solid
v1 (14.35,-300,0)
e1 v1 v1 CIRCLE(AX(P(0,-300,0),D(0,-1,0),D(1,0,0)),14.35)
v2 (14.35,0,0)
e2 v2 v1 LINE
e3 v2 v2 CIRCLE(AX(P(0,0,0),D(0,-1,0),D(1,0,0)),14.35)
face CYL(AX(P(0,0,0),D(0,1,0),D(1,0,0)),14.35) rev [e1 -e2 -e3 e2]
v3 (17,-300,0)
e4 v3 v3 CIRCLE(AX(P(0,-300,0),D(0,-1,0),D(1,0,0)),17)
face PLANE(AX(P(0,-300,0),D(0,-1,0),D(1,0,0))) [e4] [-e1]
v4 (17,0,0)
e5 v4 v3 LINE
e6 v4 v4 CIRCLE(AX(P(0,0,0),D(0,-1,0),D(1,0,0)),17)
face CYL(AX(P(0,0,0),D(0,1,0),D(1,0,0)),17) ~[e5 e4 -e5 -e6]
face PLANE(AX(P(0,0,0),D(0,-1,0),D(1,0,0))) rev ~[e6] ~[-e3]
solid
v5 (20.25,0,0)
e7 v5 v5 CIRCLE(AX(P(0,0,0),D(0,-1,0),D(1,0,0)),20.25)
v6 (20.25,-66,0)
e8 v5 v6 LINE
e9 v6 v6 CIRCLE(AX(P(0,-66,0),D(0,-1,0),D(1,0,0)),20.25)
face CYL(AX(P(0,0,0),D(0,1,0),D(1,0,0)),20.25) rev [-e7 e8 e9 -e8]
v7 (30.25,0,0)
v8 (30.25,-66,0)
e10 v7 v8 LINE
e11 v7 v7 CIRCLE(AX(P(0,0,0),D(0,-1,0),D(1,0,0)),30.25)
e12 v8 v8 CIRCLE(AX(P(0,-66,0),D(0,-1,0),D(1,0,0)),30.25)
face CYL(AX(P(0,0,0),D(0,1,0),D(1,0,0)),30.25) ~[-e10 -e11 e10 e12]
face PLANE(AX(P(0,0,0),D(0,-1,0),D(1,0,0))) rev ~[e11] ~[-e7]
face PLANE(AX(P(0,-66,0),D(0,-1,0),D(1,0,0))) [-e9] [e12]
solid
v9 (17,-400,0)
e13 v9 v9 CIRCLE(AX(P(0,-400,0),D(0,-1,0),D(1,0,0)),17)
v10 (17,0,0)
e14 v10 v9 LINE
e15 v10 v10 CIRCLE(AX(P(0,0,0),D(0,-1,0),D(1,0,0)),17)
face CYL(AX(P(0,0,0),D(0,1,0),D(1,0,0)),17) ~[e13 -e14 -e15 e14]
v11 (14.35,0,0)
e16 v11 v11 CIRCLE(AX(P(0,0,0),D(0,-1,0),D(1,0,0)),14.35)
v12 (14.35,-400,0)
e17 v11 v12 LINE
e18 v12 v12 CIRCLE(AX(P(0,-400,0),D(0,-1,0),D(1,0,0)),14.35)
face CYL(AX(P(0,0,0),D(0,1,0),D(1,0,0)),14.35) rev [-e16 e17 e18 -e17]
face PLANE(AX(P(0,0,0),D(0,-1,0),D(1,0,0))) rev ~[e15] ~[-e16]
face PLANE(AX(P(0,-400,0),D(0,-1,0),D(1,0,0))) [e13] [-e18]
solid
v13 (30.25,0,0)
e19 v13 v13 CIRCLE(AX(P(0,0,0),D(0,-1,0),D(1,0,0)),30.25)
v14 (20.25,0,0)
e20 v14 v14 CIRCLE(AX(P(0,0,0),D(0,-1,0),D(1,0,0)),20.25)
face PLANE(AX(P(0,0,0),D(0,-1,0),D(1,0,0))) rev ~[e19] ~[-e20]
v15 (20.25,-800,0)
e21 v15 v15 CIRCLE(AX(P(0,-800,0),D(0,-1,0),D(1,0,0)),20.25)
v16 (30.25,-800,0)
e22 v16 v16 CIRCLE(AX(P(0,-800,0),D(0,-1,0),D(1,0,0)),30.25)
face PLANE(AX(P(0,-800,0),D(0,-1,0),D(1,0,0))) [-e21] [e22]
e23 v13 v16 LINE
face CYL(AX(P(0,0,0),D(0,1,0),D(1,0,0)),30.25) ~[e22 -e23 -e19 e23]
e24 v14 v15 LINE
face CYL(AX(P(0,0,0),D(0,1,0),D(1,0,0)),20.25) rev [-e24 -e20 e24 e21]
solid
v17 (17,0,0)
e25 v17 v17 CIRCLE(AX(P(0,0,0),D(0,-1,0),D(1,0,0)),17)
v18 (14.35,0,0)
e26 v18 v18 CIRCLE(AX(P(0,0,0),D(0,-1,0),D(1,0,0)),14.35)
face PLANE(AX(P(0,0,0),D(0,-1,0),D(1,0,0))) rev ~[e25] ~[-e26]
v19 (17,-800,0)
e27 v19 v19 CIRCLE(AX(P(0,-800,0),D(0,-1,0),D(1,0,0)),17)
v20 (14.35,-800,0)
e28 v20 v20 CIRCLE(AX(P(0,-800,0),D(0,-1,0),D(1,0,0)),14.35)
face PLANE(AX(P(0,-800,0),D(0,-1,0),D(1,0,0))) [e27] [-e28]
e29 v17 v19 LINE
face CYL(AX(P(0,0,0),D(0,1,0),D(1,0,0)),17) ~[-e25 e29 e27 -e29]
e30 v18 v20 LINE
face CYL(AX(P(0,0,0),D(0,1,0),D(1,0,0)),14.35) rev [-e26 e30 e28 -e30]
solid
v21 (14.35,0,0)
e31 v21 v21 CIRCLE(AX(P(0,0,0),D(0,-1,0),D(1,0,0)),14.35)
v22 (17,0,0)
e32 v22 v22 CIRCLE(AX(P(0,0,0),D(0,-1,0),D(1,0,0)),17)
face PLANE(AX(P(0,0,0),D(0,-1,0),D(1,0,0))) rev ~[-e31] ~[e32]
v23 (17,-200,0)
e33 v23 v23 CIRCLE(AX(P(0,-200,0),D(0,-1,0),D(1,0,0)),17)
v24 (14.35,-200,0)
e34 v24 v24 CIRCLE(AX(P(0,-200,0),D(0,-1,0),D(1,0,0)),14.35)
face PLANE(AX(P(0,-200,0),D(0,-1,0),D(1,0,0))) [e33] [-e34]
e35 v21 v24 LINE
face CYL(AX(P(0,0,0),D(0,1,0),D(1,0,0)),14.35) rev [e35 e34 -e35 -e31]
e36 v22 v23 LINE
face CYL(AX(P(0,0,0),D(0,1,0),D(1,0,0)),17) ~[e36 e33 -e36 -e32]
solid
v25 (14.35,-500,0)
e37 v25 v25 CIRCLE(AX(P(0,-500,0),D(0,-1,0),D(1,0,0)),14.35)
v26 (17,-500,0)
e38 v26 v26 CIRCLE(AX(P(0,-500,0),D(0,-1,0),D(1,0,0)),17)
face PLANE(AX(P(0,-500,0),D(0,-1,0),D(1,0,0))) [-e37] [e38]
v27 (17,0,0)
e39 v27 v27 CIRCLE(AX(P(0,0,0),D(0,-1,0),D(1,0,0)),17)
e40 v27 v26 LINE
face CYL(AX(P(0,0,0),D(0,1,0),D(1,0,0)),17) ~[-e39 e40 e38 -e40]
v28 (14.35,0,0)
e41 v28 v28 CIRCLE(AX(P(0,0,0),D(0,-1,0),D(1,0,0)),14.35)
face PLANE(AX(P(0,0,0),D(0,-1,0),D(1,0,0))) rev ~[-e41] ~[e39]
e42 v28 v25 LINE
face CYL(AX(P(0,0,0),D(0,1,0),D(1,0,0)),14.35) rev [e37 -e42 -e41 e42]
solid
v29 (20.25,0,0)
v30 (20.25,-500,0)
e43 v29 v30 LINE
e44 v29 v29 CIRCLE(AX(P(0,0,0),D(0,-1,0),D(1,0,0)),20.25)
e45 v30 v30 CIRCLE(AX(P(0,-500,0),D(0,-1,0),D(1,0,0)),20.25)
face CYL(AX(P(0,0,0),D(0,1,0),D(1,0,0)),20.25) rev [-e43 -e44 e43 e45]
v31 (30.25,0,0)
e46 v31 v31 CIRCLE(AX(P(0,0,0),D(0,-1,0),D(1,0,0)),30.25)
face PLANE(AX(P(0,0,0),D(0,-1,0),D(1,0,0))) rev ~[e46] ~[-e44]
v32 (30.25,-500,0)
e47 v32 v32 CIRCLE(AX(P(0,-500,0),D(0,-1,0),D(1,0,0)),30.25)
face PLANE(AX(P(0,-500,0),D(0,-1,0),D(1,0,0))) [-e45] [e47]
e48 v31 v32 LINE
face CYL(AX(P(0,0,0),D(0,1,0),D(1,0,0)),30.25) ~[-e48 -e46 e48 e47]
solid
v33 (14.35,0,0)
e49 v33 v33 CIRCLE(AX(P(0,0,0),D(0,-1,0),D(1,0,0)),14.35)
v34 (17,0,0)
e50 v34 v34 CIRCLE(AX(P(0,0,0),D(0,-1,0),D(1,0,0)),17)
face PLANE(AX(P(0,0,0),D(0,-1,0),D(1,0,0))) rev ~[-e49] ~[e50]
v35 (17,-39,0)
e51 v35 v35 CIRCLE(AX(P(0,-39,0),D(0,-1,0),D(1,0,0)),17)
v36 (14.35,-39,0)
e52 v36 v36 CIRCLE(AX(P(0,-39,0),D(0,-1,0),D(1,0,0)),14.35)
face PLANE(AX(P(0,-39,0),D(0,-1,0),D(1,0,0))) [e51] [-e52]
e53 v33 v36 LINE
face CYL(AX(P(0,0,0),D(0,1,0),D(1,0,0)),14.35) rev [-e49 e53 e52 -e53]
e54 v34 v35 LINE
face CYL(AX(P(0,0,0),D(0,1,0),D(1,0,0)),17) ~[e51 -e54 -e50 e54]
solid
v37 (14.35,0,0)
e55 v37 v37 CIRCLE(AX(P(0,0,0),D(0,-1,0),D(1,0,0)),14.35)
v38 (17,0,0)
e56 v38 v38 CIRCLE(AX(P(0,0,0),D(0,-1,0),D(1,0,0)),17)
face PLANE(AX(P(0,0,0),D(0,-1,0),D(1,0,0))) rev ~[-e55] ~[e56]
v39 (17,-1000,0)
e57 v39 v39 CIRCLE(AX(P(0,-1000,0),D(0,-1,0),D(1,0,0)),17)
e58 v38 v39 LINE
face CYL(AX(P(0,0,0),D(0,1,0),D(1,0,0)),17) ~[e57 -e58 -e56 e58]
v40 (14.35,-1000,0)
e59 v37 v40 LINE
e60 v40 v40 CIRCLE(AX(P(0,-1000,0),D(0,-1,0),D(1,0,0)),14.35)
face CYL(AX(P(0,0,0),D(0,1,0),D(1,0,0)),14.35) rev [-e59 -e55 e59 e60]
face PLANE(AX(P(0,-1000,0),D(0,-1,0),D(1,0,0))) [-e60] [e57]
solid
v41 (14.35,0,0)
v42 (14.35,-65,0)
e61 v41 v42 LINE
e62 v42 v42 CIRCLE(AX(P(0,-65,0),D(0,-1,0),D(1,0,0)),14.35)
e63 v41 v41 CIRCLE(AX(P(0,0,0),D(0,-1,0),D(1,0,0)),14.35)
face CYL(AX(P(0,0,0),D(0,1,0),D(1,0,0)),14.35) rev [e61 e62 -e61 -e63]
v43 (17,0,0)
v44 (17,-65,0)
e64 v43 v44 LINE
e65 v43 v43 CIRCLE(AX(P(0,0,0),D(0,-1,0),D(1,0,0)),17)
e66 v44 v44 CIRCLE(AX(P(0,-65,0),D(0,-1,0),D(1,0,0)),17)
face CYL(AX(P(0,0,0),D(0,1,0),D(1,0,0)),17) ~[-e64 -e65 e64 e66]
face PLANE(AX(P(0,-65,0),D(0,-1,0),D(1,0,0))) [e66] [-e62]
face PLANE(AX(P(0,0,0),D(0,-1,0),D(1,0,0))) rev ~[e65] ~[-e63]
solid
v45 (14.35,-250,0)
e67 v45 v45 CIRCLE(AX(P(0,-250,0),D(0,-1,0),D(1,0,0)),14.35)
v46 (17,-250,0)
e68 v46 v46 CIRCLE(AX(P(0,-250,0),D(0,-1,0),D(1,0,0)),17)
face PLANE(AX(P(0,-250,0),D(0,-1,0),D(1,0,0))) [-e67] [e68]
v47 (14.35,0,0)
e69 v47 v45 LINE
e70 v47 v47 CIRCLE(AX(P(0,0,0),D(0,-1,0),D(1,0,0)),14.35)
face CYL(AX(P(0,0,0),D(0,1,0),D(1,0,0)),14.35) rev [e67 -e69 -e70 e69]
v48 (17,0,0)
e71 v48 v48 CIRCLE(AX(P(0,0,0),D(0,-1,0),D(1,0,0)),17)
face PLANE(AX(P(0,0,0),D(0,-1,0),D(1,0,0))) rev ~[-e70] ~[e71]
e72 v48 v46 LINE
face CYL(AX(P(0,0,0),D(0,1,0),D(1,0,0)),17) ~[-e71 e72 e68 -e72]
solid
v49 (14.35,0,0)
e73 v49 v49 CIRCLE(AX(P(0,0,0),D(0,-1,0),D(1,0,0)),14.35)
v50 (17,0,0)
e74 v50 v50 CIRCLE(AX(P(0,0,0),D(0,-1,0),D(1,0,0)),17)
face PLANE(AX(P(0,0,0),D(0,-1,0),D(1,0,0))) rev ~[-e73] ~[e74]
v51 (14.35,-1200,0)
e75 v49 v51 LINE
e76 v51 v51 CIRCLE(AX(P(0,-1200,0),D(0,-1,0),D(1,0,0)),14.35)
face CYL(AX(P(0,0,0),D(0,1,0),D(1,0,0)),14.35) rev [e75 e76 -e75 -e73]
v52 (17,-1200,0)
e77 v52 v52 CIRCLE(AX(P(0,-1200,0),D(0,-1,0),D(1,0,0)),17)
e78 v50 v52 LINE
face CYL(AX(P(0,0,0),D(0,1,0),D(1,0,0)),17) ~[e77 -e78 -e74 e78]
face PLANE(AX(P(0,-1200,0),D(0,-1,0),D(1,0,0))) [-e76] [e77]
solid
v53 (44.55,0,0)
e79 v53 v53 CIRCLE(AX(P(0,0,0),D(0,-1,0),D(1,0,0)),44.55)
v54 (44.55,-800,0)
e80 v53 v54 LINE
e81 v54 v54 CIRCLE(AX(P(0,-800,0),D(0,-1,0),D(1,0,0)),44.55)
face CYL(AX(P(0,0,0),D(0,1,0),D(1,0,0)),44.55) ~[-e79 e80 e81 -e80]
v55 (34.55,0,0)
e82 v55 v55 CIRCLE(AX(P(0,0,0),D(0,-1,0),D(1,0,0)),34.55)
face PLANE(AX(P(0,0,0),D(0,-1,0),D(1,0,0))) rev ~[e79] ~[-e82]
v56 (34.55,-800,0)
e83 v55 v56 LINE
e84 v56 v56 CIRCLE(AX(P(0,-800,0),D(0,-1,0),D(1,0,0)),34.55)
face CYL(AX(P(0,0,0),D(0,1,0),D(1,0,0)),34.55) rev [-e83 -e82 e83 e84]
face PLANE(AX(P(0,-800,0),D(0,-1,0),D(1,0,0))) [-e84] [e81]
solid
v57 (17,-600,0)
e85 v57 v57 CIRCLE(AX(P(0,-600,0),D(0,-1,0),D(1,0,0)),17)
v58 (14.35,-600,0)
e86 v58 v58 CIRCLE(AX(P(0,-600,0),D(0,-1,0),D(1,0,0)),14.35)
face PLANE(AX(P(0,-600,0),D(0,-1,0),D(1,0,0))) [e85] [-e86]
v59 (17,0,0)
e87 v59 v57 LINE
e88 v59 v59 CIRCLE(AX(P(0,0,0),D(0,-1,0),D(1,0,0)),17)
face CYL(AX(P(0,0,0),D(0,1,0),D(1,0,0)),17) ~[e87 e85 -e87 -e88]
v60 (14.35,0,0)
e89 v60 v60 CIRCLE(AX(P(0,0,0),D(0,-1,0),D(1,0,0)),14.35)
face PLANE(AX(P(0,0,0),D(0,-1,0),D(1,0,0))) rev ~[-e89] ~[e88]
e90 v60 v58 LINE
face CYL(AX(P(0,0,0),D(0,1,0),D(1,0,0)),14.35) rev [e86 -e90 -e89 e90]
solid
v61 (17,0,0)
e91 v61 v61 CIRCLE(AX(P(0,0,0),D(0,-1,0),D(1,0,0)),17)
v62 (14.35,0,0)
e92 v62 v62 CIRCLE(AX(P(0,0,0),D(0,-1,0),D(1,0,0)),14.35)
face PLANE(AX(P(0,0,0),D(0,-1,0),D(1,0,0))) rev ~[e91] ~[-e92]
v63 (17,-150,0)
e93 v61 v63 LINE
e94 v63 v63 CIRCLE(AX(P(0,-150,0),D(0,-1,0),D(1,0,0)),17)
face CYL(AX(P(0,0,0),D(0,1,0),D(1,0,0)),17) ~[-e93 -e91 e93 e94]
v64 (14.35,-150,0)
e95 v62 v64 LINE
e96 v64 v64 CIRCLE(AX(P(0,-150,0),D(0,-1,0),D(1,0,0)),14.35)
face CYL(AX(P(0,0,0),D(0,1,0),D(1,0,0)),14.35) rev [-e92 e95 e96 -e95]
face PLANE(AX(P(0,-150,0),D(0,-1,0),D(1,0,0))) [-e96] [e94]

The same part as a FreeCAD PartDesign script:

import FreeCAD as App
import Part
import Sketcher

doc = App.newDocument("Part")
body = doc.addObject("PartDesign::Body", "Body")

sketch1 = doc.addObject("Sketcher::SketchObject", "Sketch")
body.addObject(sketch1)
sketch1.AttachmentSupport = (doc.XZ_Plane, [""])
sketch1.MapMode = "FlatFace"
sketch1.addGeometry([
    Part.Circle(App.Vector(0, 0, 0), App.Vector(0, 0, 1), 17),
    Part.Circle(App.Vector(0, 0, 0), App.Vector(0, 0, 1), 14),
], False)
sketch1.addConstraint([
    Sketcher.Constraint("Coincident", 0, 3, -1, 1),
    Sketcher.Constraint("Coincident", 1, 3, -1, 1),
    Sketcher.Constraint("Diameter", 0, 34.0),
    Sketcher.Constraint("Diameter", 1, 28.7),
])
pad1 = doc.addObject("PartDesign::Pad", "Pad")
body.addObject(pad1)
pad1.Profile = sketch1
pad1.Length = 1000
body2 = doc.addObject("PartDesign::Body", "Body001")

sketch2 = doc.addObject("Sketcher::SketchObject", "Sketch001")
body2.addObject(sketch2)
sketch2.AttachmentSupport = (doc.getObject("XZ_Plane001"), [""])
sketch2.MapMode = "FlatFace"
sketch2.addGeometry([
    Part.Circle(App.Vector(0, 0, 0), App.Vector(0, 0, 1), 17),
    Part.Circle(App.Vector(0, 0, 0), App.Vector(0, 0, 1), 14),
], False)
sketch2.addConstraint([
    Sketcher.Constraint("Coincident", 0, 3, -1, 1),
    Sketcher.Constraint("Coincident", 1, 3, -1, 1),
    Sketcher.Constraint("Diameter", 0, 34.0),
    Sketcher.Constraint("Diameter", 1, 28.7),
])
pad2 = doc.addObject("PartDesign::Pad", "Pad001")
body2.addObject(pad2)
pad2.Profile = sketch2
pad2.Length = 39
body3 = doc.addObject("PartDesign::Body", "Body002")

sketch3 = doc.addObject("Sketcher::SketchObject", "Sketch002")
body3.addObject(sketch3)
sketch3.AttachmentSupport = (doc.getObject("XZ_Plane002"), [""])
sketch3.MapMode = "FlatFace"
sketch3.addGeometry([
    Part.Circle(App.Vector(0, 0, 0), App.Vector(0, 0, 1), 17),
    Part.Circle(App.Vector(0, 0, 0), App.Vector(0, 0, 1), 14),
], False)
sketch3.addConstraint([
    Sketcher.Constraint("Coincident", 0, 3, -1, 1),
    Sketcher.Constraint("Coincident", 1, 3, -1, 1),
    Sketcher.Constraint("Diameter", 0, 34.0),
    Sketcher.Constraint("Diameter", 1, 28.7),
])
pad3 = doc.addObject("PartDesign::Pad", "Pad002")
body3.addObject(pad3)
pad3.Profile = sketch3
pad3.Length = 600
body4 = doc.addObject("PartDesign::Body", "Body003")

sketch4 = doc.addObject("Sketcher::SketchObject", "Sketch003")
body4.addObject(sketch4)
sketch4.AttachmentSupport = (doc.getObject("XZ_Plane003"), [""])
sketch4.MapMode = "FlatFace"
sketch4.addGeometry([
    Part.Circle(App.Vector(0, 0, 0), App.Vector(0, 0, 1), 17),
    Part.Circle(App.Vector(0, 0, 0), App.Vector(0, 0, 1), 14),
], False)
sketch4.addConstraint([
    Sketcher.Constraint("Coincident", 0, 3, -1, 1),
    Sketcher.Constraint("Coincident", 1, 3, -1, 1),
    Sketcher.Constraint("Diameter", 0, 34.0),
    Sketcher.Constraint("Diameter", 1, 28.7),
])
pad4 = doc.addObject("PartDesign::Pad", "Pad003")
body4.addObject(pad4)
pad4.Profile = sketch4
pad4.Length = 300
body5 = doc.addObject("PartDesign::Body", "Body004")

sketch5 = doc.addObject("Sketcher::SketchObject", "Sketch004")
body5.addObject(sketch5)
sketch5.AttachmentSupport = (doc.getObject("XZ_Plane004"), [""])
sketch5.MapMode = "FlatFace"
sketch5.addGeometry([
    Part.Circle(App.Vector(0, 0, 0), App.Vector(0, 0, 1), 17),
    Part.Circle(App.Vector(0, 0, 0), App.Vector(0, 0, 1), 14),
], False)
sketch5.addConstraint([
    Sketcher.Constraint("Coincident", 0, 3, -1, 1),
    Sketcher.Constraint("Coincident", 1, 3, -1, 1),
    Sketcher.Constraint("Diameter", 0, 34.0),
    Sketcher.Constraint("Diameter", 1, 28.7),
])
pad5 = doc.addObject("PartDesign::Pad", "Pad004")
body5.addObject(pad5)
pad5.Profile = sketch5
pad5.Length = 500
body6 = doc.addObject("PartDesign::Body", "Body005")

sketch6 = doc.addObject("Sketcher::SketchObject", "Sketch005")
body6.addObject(sketch6)
sketch6.AttachmentSupport = (doc.getObject("XZ_Plane005"), [""])
sketch6.MapMode = "FlatFace"
sketch6.addGeometry([
    Part.Circle(App.Vector(0, 0, 0), App.Vector(0, 0, 1), 17),
    Part.Circle(App.Vector(0, 0, 0), App.Vector(0, 0, 1), 14),
], False)
sketch6.addConstraint([
    Sketcher.Constraint("Coincident", 0, 3, -1, 1),
    Sketcher.Constraint("Coincident", 1, 3, -1, 1),
    Sketcher.Constraint("Diameter", 0, 34.0),
    Sketcher.Constraint("Diameter", 1, 28.7),
])
pad6 = doc.addObject("PartDesign::Pad", "Pad005")
body6.addObject(pad6)
pad6.Profile = sketch6
pad6.Length = 65
body7 = doc.addObject("PartDesign::Body", "Body006")

sketch7 = doc.addObject("Sketcher::SketchObject", "Sketch006")
body7.addObject(sketch7)
sketch7.AttachmentSupport = (doc.getObject("XZ_Plane006"), [""])
sketch7.MapMode = "FlatFace"
sketch7.addGeometry([
    Part.Circle(App.Vector(0, 0, 0), App.Vector(0, 0, 1), 45),
    Part.Circle(App.Vector(0, 0, 0), App.Vector(0, 0, 1), 35),
], False)
sketch7.addConstraint([
    Sketcher.Constraint("Coincident", 0, 3, -1, 1),
    Sketcher.Constraint("Coincident", 1, 3, -1, 1),
    Sketcher.Constraint("Diameter", 0, 89.1),
    Sketcher.Constraint("Diameter", 1, 69.1),
])
pad7 = doc.addObject("PartDesign::Pad", "Pad006")
body7.addObject(pad7)
pad7.Profile = sketch7
pad7.Length = 800
body8 = doc.addObject("PartDesign::Body", "Body007")

sketch8 = doc.addObject("Sketcher::SketchObject", "Sketch007")
body8.addObject(sketch8)
sketch8.AttachmentSupport = (doc.getObject("XZ_Plane007"), [""])
sketch8.MapMode = "FlatFace"
sketch8.addGeometry([
    Part.Circle(App.Vector(0, 0, 0), App.Vector(0, 0, 1), 30),
    Part.Circle(App.Vector(0, 0, 0), App.Vector(0, 0, 1), 20),
], False)
sketch8.addConstraint([
    Sketcher.Constraint("Coincident", 0, 3, -1, 1),
    Sketcher.Constraint("Coincident", 1, 3, -1, 1),
    Sketcher.Constraint("Diameter", 0, 60.5),
    Sketcher.Constraint("Diameter", 1, 40.5),
])
pad8 = doc.addObject("PartDesign::Pad", "Pad007")
body8.addObject(pad8)
pad8.Profile = sketch8
pad8.Length = 66
body9 = doc.addObject("PartDesign::Body", "Body008")

sketch9 = doc.addObject("Sketcher::SketchObject", "Sketch008")
body9.addObject(sketch9)
sketch9.AttachmentSupport = (doc.getObject("XZ_Plane008"), [""])
sketch9.MapMode = "FlatFace"
sketch9.addGeometry([
    Part.Circle(App.Vector(0, 0, 0), App.Vector(0, 0, 1), 17),
    Part.Circle(App.Vector(0, 0, 0), App.Vector(0, 0, 1), 14),
], False)
sketch9.addConstraint([
    Sketcher.Constraint("Coincident", 0, 3, -1, 1),
    Sketcher.Constraint("Coincident", 1, 3, -1, 1),
    Sketcher.Constraint("Diameter", 0, 34.0),
    Sketcher.Constraint("Diameter", 1, 28.7),
])
pad9 = doc.addObject("PartDesign::Pad", "Pad008")
body9.addObject(pad9)
pad9.Profile = sketch9
pad9.Length = 200
body10 = doc.addObject("PartDesign::Body", "Body009")

sketch10 = doc.addObject("Sketcher::SketchObject", "Sketch009")
body10.addObject(sketch10)
sketch10.AttachmentSupport = (doc.getObject("XZ_Plane009"), [""])
sketch10.MapMode = "FlatFace"
sketch10.addGeometry([
    Part.Circle(App.Vector(0, 0, 0), App.Vector(0, 0, 1), 17),
    Part.Circle(App.Vector(0, 0, 0), App.Vector(0, 0, 1), 14),
], False)
sketch10.addConstraint([
    Sketcher.Constraint("Coincident", 0, 3, -1, 1),
    Sketcher.Constraint("Coincident", 1, 3, -1, 1),
    Sketcher.Constraint("Diameter", 0, 34.0),
    Sketcher.Constraint("Diameter", 1, 28.7),
])
pad10 = doc.addObject("PartDesign::Pad", "Pad009")
body10.addObject(pad10)
pad10.Profile = sketch10
pad10.Length = 150
body11 = doc.addObject("PartDesign::Body", "Body010")

sketch11 = doc.addObject("Sketcher::SketchObject", "Sketch010")
body11.addObject(sketch11)
sketch11.AttachmentSupport = (doc.getObject("XZ_Plane010"), [""])
sketch11.MapMode = "FlatFace"
sketch11.addGeometry([
    Part.Circle(App.Vector(0, 0, 0), App.Vector(0, 0, 1), 30),
    Part.Circle(App.Vector(0, 0, 0), App.Vector(0, 0, 1), 20),
], False)
sketch11.addConstraint([
    Sketcher.Constraint("Coincident", 0, 3, -1, 1),
    Sketcher.Constraint("Coincident", 1, 3, -1, 1),
    Sketcher.Constraint("Diameter", 0, 60.5),
    Sketcher.Constraint("Diameter", 1, 40.5),
])
pad11 = doc.addObject("PartDesign::Pad", "Pad010")
body11.addObject(pad11)
pad11.Profile = sketch11
pad11.Length = 500
body12 = doc.addObject("PartDesign::Body", "Body011")

sketch12 = doc.addObject("Sketcher::SketchObject", "Sketch011")
body12.addObject(sketch12)
sketch12.AttachmentSupport = (doc.getObject("XZ_Plane011"), [""])
sketch12.MapMode = "FlatFace"
sketch12.addGeometry([
    Part.Circle(App.Vector(0, 0, 0), App.Vector(0, 0, 1), 17),
    Part.Circle(App.Vector(0, 0, 0), App.Vector(0, 0, 1), 14),
], False)
sketch12.addConstraint([
    Sketcher.Constraint("Coincident", 0, 3, -1, 1),
    Sketcher.Constraint("Coincident", 1, 3, -1, 1),
    Sketcher.Constraint("Diameter", 0, 34.0),
    Sketcher.Constraint("Diameter", 1, 28.7),
])
pad12 = doc.addObject("PartDesign::Pad", "Pad011")
body12.addObject(pad12)
pad12.Profile = sketch12
pad12.Length = 400
body13 = doc.addObject("PartDesign::Body", "Body012")

sketch13 = doc.addObject("Sketcher::SketchObject", "Sketch012")
body13.addObject(sketch13)
sketch13.AttachmentSupport = (doc.getObject("XZ_Plane012"), [""])
sketch13.MapMode = "FlatFace"
sketch13.addGeometry([
    Part.Circle(App.Vector(0, 0, 0), App.Vector(0, 0, 1), 17),
    Part.Circle(App.Vector(0, 0, 0), App.Vector(0, 0, 1), 14),
], False)
sketch13.addConstraint([
    Sketcher.Constraint("Coincident", 0, 3, -1, 1),
    Sketcher.Constraint("Coincident", 1, 3, -1, 1),
    Sketcher.Constraint("Diameter", 0, 34.0),
    Sketcher.Constraint("Diameter", 1, 28.7),
])
pad13 = doc.addObject("PartDesign::Pad", "Pad012")
body13.addObject(pad13)
pad13.Profile = sketch13
pad13.Length = 800
body14 = doc.addObject("PartDesign::Body", "Body013")

sketch14 = doc.addObject("Sketcher::SketchObject", "Sketch013")
body14.addObject(sketch14)
sketch14.AttachmentSupport = (doc.getObject("XZ_Plane013"), [""])
sketch14.MapMode = "FlatFace"
sketch14.addGeometry([
    Part.Circle(App.Vector(0, 0, 0), App.Vector(0, 0, 1), 17),
    Part.Circle(App.Vector(0, 0, 0), App.Vector(0, 0, 1), 14),
], False)
sketch14.addConstraint([
    Sketcher.Constraint("Coincident", 0, 3, -1, 1),
    Sketcher.Constraint("Coincident", 1, 3, -1, 1),
    Sketcher.Constraint("Diameter", 0, 34.0),
    Sketcher.Constraint("Diameter", 1, 28.7),
])
pad14 = doc.addObject("PartDesign::Pad", "Pad013")
body14.addObject(pad14)
pad14.Profile = sketch14
pad14.Length = 250
body15 = doc.addObject("PartDesign::Body", "Body014")

sketch15 = doc.addObject("Sketcher::SketchObject", "Sketch014")
body15.addObject(sketch15)
sketch15.AttachmentSupport = (doc.getObject("XZ_Plane014"), [""])
sketch15.MapMode = "FlatFace"
sketch15.addGeometry([
    Part.Circle(App.Vector(0, 0, 0), App.Vector(0, 0, 1), 17),
    Part.Circle(App.Vector(0, 0, 0), App.Vector(0, 0, 1), 14),
], False)
sketch15.addConstraint([
    Sketcher.Constraint("Coincident", 0, 3, -1, 1),
    Sketcher.Constraint("Coincident", 1, 3, -1, 1),
    Sketcher.Constraint("Diameter", 0, 34.0),
    Sketcher.Constraint("Diameter", 1, 28.7),
])
pad15 = doc.addObject("PartDesign::Pad", "Pad014")
body15.addObject(pad15)
pad15.Profile = sketch15
pad15.Length = 1200
body16 = doc.addObject("PartDesign::Body", "Body015")

sketch16 = doc.addObject("Sketcher::SketchObject", "Sketch015")
body16.addObject(sketch16)
sketch16.AttachmentSupport = (doc.getObject("XZ_Plane015"), [""])
sketch16.MapMode = "FlatFace"
sketch16.addGeometry([
    Part.Circle(App.Vector(0, 0, 0), App.Vector(0, 0, 1), 30),
    Part.Circle(App.Vector(0, 0, 0), App.Vector(0, 0, 1), 20),
], False)
sketch16.addConstraint([
    Sketcher.Constraint("Coincident", 0, 3, -1, 1),
    Sketcher.Constraint("Coincident", 1, 3, -1, 1),
    Sketcher.Constraint("Diameter", 0, 60.5),
    Sketcher.Constraint("Diameter", 1, 40.5),
])
pad16 = doc.addObject("PartDesign::Pad", "Pad015")
body16.addObject(pad16)
pad16.Profile = sketch16
pad16.Length = 800

doc.recompute()
